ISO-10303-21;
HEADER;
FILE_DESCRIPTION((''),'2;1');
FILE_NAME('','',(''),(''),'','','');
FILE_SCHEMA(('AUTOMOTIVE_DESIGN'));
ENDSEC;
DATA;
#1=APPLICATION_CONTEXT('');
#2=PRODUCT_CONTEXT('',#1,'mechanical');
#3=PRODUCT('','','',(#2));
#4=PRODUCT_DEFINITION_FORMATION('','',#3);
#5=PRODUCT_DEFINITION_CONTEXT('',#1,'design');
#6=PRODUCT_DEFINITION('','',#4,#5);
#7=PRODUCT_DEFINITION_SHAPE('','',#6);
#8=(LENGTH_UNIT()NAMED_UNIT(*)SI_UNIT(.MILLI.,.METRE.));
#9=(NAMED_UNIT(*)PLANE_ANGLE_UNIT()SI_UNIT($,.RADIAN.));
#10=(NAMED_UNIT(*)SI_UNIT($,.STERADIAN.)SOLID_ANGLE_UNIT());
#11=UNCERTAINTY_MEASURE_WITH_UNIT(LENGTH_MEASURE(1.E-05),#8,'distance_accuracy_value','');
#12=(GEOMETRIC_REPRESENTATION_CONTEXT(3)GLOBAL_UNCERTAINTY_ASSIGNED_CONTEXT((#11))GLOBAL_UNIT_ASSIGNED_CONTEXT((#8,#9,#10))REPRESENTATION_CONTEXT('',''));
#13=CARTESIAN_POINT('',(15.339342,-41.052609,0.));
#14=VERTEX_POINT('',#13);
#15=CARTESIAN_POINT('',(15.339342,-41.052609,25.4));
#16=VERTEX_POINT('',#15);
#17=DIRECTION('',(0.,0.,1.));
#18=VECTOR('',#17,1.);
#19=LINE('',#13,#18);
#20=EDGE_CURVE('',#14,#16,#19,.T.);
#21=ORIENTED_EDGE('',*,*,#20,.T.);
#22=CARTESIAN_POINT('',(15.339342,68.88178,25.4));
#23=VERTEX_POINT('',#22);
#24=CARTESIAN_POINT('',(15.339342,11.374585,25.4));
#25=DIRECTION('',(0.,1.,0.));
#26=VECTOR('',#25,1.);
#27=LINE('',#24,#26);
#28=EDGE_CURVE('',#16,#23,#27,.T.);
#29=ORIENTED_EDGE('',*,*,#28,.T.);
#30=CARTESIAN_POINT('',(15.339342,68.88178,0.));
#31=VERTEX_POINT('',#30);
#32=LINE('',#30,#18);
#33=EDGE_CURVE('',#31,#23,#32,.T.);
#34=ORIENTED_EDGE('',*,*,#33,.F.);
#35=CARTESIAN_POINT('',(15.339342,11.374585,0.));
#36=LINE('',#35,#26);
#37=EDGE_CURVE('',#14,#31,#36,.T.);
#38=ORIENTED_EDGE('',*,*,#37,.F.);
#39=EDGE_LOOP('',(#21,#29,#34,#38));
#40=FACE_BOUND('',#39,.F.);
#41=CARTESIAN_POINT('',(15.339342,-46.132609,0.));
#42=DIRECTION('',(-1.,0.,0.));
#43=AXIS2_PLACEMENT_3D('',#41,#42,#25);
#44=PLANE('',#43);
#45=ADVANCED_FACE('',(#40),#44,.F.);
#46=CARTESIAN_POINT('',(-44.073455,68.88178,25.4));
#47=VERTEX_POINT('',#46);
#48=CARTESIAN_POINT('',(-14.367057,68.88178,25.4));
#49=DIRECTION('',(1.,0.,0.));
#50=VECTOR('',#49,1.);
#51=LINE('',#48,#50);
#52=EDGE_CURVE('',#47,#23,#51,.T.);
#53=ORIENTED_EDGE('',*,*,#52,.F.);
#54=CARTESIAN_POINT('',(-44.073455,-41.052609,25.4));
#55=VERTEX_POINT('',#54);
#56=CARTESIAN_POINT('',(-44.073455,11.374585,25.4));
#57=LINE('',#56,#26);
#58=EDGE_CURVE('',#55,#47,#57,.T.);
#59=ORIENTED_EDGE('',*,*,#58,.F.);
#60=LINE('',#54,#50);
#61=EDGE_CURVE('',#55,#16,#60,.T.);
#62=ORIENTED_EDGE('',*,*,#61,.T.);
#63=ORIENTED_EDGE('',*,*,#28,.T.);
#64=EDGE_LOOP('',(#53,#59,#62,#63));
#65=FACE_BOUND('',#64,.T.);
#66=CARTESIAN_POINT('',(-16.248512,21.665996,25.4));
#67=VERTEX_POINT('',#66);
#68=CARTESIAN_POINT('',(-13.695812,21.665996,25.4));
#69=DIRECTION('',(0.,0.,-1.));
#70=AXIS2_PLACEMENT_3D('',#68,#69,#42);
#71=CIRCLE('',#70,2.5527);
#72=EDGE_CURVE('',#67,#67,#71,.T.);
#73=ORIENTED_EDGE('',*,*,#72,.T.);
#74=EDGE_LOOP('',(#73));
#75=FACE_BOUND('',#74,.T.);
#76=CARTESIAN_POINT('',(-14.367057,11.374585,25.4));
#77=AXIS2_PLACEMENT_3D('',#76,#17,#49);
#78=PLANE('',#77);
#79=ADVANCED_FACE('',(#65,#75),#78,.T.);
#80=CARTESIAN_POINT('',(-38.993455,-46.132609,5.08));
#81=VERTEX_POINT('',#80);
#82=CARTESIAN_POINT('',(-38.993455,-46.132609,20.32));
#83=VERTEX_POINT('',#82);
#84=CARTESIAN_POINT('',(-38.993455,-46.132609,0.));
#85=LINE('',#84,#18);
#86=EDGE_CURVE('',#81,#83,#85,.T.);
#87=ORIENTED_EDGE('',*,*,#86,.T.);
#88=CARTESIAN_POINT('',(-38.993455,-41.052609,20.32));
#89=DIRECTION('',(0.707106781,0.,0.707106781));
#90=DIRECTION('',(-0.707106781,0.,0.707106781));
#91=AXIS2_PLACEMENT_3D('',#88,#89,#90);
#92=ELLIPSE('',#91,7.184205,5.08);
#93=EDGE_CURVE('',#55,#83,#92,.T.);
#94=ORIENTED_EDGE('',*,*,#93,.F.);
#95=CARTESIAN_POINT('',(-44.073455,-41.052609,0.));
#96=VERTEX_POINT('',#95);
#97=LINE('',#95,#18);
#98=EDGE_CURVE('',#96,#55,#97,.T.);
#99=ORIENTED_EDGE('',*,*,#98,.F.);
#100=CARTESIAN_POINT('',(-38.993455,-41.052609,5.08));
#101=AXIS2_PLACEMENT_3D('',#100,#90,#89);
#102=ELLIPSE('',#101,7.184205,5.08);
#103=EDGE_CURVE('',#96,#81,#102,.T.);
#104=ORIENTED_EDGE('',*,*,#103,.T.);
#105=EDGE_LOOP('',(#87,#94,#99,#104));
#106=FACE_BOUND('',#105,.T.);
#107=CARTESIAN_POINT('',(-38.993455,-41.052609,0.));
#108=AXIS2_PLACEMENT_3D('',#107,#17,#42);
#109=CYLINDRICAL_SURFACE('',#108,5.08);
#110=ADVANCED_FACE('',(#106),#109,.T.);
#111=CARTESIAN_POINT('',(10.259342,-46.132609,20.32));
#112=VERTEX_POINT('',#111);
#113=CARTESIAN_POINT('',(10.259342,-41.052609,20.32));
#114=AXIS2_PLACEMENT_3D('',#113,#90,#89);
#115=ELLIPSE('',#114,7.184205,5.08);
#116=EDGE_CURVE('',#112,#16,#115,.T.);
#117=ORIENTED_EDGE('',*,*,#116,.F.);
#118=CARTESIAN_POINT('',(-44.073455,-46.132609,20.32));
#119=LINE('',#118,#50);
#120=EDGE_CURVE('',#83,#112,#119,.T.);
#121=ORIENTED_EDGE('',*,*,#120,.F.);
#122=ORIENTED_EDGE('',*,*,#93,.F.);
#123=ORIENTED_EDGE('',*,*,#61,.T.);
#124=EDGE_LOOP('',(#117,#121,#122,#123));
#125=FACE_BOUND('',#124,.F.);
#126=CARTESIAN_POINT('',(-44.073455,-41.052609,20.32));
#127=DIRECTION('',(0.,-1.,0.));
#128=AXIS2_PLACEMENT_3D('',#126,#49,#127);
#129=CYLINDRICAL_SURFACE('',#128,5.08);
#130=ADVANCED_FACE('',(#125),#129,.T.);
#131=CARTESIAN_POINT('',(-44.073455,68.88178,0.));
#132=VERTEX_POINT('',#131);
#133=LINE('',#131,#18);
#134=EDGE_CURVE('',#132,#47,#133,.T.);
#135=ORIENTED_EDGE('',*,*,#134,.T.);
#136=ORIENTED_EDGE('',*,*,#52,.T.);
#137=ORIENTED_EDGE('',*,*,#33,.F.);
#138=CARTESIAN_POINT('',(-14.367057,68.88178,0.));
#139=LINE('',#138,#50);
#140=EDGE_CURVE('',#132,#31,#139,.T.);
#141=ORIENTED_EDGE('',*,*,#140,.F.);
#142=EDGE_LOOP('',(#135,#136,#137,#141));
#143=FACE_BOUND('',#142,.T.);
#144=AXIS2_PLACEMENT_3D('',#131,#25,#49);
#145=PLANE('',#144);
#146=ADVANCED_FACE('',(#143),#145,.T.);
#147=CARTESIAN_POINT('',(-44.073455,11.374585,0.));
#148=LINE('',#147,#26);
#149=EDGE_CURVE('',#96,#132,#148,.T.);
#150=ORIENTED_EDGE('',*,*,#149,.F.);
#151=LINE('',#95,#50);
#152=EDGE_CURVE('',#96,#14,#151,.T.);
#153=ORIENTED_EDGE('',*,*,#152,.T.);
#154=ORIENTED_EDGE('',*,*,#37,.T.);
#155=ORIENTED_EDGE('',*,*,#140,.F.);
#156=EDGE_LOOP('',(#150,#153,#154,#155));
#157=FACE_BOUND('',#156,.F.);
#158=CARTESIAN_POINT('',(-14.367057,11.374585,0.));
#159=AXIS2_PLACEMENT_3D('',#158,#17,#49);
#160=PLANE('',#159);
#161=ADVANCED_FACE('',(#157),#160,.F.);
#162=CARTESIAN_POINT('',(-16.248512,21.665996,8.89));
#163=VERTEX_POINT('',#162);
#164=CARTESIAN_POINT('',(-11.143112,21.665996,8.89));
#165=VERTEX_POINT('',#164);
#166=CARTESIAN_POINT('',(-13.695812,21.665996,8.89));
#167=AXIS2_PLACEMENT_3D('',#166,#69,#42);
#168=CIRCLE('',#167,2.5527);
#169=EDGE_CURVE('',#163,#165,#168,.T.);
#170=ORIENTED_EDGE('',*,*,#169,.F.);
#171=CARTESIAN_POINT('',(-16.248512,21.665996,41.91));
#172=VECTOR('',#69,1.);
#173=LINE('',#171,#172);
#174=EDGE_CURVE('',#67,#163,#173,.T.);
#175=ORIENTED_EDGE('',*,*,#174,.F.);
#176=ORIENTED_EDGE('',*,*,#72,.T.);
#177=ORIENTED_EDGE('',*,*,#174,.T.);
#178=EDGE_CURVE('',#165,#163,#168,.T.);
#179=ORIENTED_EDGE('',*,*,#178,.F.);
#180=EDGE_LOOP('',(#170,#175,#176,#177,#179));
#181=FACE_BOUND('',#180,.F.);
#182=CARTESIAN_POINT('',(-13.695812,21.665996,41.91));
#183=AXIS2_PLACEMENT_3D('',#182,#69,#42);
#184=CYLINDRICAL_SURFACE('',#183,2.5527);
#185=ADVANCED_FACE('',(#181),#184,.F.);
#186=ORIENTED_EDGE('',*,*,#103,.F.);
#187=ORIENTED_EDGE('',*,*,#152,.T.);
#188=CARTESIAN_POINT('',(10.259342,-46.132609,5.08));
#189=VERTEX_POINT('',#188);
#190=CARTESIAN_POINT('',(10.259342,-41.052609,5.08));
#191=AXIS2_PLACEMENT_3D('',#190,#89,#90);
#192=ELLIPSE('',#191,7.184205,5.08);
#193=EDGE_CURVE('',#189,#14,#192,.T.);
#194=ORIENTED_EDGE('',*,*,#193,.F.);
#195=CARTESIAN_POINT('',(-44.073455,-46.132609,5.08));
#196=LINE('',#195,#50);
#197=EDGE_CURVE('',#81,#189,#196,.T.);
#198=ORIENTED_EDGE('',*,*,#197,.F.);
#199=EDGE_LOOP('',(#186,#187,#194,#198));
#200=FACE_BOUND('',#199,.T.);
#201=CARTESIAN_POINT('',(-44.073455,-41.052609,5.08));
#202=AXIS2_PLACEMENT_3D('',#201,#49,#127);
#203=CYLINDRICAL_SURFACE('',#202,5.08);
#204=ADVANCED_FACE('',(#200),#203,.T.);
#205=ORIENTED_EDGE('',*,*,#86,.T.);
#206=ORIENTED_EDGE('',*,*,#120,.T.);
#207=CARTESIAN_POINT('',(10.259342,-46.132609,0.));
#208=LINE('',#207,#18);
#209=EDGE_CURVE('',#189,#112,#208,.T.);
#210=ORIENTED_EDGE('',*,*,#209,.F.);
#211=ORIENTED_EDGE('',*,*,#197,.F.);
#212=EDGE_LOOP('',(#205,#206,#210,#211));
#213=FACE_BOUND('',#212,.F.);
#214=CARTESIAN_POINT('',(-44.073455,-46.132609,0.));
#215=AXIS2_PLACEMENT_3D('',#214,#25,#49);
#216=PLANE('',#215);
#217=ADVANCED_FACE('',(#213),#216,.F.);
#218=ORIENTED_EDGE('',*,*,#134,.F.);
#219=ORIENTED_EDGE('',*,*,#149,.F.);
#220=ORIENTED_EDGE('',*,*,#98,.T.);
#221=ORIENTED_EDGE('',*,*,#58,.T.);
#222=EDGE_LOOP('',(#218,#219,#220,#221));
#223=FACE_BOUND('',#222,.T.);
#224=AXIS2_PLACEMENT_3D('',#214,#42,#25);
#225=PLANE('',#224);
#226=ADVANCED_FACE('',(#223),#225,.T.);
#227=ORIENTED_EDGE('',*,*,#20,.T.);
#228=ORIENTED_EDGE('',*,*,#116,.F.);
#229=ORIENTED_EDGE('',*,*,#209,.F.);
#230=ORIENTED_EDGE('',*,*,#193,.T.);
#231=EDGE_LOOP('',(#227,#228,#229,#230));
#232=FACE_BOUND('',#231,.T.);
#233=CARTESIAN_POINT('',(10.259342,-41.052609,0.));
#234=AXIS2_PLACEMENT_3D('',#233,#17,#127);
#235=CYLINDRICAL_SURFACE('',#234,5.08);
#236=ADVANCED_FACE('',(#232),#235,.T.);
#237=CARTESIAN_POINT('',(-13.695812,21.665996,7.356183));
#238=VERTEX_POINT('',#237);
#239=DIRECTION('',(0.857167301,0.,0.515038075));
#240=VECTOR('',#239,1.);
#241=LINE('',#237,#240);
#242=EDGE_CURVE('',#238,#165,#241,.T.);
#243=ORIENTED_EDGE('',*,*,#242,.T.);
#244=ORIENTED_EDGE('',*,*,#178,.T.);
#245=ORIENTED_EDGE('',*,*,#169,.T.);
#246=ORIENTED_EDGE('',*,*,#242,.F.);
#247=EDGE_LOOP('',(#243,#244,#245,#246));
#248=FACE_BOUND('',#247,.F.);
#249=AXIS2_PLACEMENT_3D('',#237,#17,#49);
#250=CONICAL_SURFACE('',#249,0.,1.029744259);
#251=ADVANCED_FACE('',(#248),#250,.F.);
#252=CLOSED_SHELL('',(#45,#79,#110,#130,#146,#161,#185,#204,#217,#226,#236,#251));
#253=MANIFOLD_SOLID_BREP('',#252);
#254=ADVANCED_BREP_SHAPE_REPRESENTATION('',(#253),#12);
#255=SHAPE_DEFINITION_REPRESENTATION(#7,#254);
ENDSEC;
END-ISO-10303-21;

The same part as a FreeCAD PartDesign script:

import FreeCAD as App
import Part
import Sketcher

V = App.Vector
Q = App.Units.Quantity


def edges_at(feature, points):
    """Names of the edges that pass closest to the given points."""
    edges = feature.Shape.Edges
    near = lambda p: min(range(len(edges)), key=lambda i: edges[i].distToShape(Part.Vertex(*p))[0])
    return sorted({f"Edge{near(p) + 1}" for p in points})


def add_polygon(sketch, points):
    """Adds a closed chain of lines whose ends are joined by coincident constraints."""
    first, n = sketch.GeometryCount, len(points)
    for a, b in zip(points, points[1:] + points[:1]):
        sketch.addGeometry(Part.LineSegment(App.Vector(*a, 0), App.Vector(*b, 0)), False)
    for i in range(n):
        sketch.addConstraint(Sketcher.Constraint("Coincident", first + i, 2, first + (i + 1) % n, 1))

doc = App.newDocument("Part")
body = doc.addObject("PartDesign::Body", "Body")

sketch1 = body.newObject("Sketcher::SketchObject", "Sketch")
sketch1.AttachmentSupport = (doc.getObject("XY_Plane"), [""])
sketch1.MapMode = "FlatFace"
add_polygon(sketch1, [(-44, 69), (-44, -46), (15, -46), (15, 69)])
sketch1.addConstraint([
    Sketcher.Constraint("Vertical", 0),
    Sketcher.Constraint("Horizontal", 1),
    Sketcher.Constraint("Vertical", 2),
    Sketcher.Constraint("Horizontal", 3),
    Sketcher.Constraint("DistanceY", 0, 2, 0, 1, Q("115.014389 mm")),
    Sketcher.Constraint("DistanceX", 1, 1, 1, 2, Q("59.412797 mm")),
    Sketcher.Constraint("DistanceY", 0, 2, -1, 1, Q("46.132609 mm")),
    Sketcher.Constraint("DistanceX", -1, 1, 1, 2, Q("15.339342 mm")),
])
pad1 = body.newObject("PartDesign::Pad", "Pad")
pad1.Profile = sketch1
pad1.Length = Q("1 in")
doc.recompute()

fillet = body.newObject("PartDesign::Fillet", "Fillet")
fillet.Base = (pad1, edges_at(pad1, [
    (-44.073, -46.133, 12.7),
    (-14.367, -46.133, 25.4),
    (15.339, -46.133, 12.7),
    (-14.367, -46.133, 0),
]))
fillet.Radius = Q("0.2 in")

sketch2 = body.newObject("Sketcher::SketchObject", "Sketch001")
sketch2.AttachmentSupport = (doc.getObject("XY_Plane"), [""])
sketch2.MapMode = "FlatFace"
sketch2.AttachmentOffset = App.Placement(V(0, 0, 1 * 25.4), App.Rotation())
sketch2.addGeometry(Part.Circle(V(-13.7, 21.7, 0), V(0, 0, 1), 2.6), False)
sketch2.addConstraint([
    Sketcher.Constraint("Diameter", 0, Q("0.201 in")),
    Sketcher.Constraint("DistanceX", 0, 3, -1, 1, Q("13.695812 mm")),
    Sketcher.Constraint("DistanceY", -1, 1, 0, 3, Q("21.665996 mm")),
])
doc.recompute()
hole = body.newObject("PartDesign::Hole", "Hole")
hole.Profile = sketch2
hole.ThreadType = "None"
hole.Diameter = Q("0.201 in")
hole.DepthType = "Dimension"
hole.Depth = Q("0.65 in")
hole.DrillPoint = "Angled"
hole.DrillPointAngle = 118

doc.recompute()
